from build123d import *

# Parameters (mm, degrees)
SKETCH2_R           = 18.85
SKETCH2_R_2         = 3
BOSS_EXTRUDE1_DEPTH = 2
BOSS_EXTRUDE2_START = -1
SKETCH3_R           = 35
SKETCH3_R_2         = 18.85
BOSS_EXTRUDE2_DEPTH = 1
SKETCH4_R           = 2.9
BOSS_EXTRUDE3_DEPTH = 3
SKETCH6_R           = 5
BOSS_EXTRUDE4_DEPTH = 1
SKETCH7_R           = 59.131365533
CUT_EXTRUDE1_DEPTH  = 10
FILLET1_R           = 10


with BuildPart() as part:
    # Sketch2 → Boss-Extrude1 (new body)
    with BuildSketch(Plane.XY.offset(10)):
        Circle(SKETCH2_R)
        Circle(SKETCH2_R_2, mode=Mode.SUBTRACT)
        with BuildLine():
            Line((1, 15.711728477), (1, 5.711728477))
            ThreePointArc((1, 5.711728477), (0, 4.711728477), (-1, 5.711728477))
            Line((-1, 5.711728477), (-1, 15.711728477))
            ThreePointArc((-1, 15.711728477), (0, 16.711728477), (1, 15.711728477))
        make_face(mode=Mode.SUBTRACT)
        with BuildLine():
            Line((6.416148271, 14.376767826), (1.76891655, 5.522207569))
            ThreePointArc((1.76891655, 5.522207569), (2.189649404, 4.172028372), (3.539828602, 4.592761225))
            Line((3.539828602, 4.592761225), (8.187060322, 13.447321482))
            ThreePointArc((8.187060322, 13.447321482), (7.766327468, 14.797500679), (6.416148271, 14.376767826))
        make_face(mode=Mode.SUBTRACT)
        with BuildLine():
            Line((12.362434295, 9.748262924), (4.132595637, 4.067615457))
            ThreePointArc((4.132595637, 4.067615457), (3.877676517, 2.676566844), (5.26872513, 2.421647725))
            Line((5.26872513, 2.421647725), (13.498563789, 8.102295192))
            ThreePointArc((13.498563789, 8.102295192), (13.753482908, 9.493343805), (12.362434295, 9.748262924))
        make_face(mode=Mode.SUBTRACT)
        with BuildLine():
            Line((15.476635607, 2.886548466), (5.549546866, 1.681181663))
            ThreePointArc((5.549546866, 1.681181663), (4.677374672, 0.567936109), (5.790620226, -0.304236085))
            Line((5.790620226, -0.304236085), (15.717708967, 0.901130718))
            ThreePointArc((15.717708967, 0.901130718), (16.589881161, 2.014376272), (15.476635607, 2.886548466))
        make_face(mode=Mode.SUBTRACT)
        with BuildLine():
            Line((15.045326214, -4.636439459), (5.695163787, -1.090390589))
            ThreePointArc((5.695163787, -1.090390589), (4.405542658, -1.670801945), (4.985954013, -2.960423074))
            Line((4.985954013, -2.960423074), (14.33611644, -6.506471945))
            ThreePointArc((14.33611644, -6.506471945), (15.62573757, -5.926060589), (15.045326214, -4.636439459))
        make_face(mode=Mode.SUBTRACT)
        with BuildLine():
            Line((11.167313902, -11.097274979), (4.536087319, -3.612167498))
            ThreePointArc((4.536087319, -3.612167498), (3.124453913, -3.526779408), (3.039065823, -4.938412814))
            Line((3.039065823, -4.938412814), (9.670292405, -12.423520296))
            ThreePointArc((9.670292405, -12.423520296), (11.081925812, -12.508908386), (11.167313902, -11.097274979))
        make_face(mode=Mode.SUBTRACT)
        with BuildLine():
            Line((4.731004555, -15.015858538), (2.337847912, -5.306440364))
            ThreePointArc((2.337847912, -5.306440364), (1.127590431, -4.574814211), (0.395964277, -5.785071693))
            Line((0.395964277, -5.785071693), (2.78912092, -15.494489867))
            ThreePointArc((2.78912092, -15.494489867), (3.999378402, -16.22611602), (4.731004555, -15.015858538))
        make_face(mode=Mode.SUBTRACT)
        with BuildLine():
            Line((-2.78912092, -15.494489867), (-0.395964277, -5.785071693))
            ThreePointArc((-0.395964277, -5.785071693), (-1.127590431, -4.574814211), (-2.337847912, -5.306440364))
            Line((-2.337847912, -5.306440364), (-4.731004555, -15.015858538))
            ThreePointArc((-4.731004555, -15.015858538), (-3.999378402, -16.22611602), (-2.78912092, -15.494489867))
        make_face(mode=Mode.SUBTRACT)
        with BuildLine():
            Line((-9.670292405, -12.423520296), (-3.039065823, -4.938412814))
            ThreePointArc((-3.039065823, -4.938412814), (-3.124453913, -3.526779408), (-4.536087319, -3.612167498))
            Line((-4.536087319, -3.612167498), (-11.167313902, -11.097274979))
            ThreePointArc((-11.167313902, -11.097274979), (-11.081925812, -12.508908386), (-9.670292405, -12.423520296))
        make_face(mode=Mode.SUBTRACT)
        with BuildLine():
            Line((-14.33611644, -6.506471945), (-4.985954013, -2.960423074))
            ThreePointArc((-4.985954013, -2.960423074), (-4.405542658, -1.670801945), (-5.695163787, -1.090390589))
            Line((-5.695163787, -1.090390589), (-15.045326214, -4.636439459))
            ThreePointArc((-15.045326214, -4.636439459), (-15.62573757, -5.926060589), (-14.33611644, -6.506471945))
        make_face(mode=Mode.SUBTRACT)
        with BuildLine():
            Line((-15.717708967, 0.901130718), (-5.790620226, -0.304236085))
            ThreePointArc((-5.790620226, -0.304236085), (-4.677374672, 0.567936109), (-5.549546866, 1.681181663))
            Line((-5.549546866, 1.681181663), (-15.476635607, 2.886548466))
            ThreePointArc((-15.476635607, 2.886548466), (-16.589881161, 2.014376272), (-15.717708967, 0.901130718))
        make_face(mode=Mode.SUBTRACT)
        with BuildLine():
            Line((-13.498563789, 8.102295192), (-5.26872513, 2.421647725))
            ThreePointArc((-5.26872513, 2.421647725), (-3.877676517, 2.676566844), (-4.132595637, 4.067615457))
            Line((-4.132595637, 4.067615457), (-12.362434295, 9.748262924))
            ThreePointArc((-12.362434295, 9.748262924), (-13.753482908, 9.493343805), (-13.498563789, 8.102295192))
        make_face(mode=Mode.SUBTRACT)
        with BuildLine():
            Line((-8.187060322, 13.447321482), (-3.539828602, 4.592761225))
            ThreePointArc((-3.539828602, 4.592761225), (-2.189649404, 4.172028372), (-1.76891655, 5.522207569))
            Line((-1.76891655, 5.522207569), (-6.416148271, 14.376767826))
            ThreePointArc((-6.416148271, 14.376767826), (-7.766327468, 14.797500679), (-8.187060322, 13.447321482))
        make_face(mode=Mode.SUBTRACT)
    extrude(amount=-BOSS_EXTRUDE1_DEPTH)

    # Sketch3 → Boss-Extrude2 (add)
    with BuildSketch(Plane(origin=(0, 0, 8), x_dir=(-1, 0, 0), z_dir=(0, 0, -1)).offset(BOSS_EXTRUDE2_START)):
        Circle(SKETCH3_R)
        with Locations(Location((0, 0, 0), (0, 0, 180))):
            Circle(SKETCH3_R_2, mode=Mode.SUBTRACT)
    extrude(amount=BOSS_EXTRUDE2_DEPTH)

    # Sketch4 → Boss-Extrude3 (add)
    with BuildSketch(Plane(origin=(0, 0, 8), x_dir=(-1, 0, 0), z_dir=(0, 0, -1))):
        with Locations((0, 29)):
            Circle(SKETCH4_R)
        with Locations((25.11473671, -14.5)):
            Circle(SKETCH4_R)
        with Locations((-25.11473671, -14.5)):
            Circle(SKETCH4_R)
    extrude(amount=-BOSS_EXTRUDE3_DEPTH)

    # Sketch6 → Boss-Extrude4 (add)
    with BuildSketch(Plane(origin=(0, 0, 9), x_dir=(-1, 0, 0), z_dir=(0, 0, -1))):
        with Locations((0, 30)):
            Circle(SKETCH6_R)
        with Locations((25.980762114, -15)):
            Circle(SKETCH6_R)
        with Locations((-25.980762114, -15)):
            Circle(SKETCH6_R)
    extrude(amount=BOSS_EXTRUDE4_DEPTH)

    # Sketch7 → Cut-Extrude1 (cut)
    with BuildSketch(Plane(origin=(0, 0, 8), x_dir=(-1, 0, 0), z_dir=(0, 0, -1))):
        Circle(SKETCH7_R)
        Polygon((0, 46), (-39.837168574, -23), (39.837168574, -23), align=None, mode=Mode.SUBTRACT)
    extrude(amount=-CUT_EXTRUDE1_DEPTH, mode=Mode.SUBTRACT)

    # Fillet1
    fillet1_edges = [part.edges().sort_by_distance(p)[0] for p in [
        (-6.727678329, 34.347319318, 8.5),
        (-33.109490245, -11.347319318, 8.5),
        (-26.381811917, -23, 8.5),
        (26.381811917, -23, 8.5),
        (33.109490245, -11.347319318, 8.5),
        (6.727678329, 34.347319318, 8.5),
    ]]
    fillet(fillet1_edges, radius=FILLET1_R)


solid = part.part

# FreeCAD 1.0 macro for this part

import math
import FreeCAD as App
import Part
import Sketcher
Q = App.Units.Quantity


def edges_at(feature, points):
    """Names of the edges that pass closest to the given points."""
    edges = feature.Shape.Edges
    near = lambda p: min(range(len(edges)), key=lambda i: edges[i].distToShape(Part.Vertex(*p))[0])
    return sorted({f"Edge{near(p) + 1}" for p in points})


def add_polygon(sketch, points):
    """Adds a closed chain of lines whose ends are joined by coincident constraints."""
    first, n = sketch.GeometryCount, len(points)
    for a, b in zip(points, points[1:] + points[:1]):
        sketch.addGeometry(Part.LineSegment(App.Vector(*a, 0), App.Vector(*b, 0)), False)
    for i in range(n):
        sketch.addConstraint(Sketcher.Constraint("Coincident", first + i, 2, first + (i + 1) % n, 1))

doc = App.newDocument("Part")
body = doc.addObject("PartDesign::Body", "Body")

sketch1 = body.newObject("Sketcher::SketchObject", "Sketch")
sketch1.AttachmentSupport = (doc.getObject("XY_Plane"), [""])
sketch1.MapMode = "FlatFace"
sketch1.AttachmentOffset = App.Placement(App.Vector(0, 0, 10), App.Rotation())
sketch1.addGeometry(Part.Circle(App.Vector(0, 0, 0), App.Vector(0, 0, 1), 18.9), False)
sketch1.addGeometry(Part.LineSegment(App.Vector(-3, -4.9, 0), App.Vector(-9.7, -12.4, 0)), False)
sketch1.addGeometry(Part.ArcOfCircle(Part.Circle(App.Vector(-10.4, -11.8, 0), App.Vector(0, 0, 1), 1), math.radians(138), math.radians(318)), False)
sketch1.addGeometry(Part.LineSegment(App.Vector(-11.2, -11.1, 0), App.Vector(-4.5, -3.6, 0)), False)
sketch1.addGeometry(Part.ArcOfCircle(Part.Circle(App.Vector(-3.8, -4.3, 0), App.Vector(0, 0, 1), 1), math.radians(-42), math.radians(138)), False)
sketch1.addGeometry(Part.LineSegment(App.Vector(-0.4, -5.8, 0), App.Vector(-2.8, -15.5, 0)), False)
sketch1.addGeometry(Part.ArcOfCircle(Part.Circle(App.Vector(-3.8, -15.3, 0), App.Vector(0, 0, 1), 1), math.radians(166), math.radians(346)), False)
sketch1.addGeometry(Part.LineSegment(App.Vector(-4.7, -15, 0), App.Vector(-2.3, -5.3, 0)), False)
sketch1.addGeometry(Part.ArcOfCircle(Part.Circle(App.Vector(-1.4, -5.5, 0), App.Vector(0, 0, 1), 1), math.radians(-14), math.radians(166)), False)
sketch1.addGeometry(Part.LineSegment(App.Vector(-5, -3, 0), App.Vector(-14.3, -6.5, 0)), False)
sketch1.addGeometry(Part.ArcOfCircle(Part.Circle(App.Vector(-14.7, -5.6, 0), App.Vector(0, 0, 1), 1), math.radians(111), math.radians(291)), False)
sketch1.addGeometry(Part.LineSegment(App.Vector(-15, -4.6, 0), App.Vector(-5.7, -1.1, 0)), False)
sketch1.addGeometry(Part.ArcOfCircle(Part.Circle(App.Vector(-5.3, -2, 0), App.Vector(0, 0, 1), 1), math.radians(-69), math.radians(111)), False)
sketch1.addGeometry(Part.Circle(App.Vector(0, 0, 0), App.Vector(0, 0, 1), 3), False)
sketch1.addGeometry(Part.LineSegment(App.Vector(2.3, -5.3, 0), App.Vector(4.7, -15, 0)), False)
sketch1.addGeometry(Part.ArcOfCircle(Part.Circle(App.Vector(3.8, -15.3, 0), App.Vector(0, 0, 1), 1), math.radians(-166), math.radians(14)), False)
sketch1.addGeometry(Part.LineSegment(App.Vector(2.8, -15.5, 0), App.Vector(0.4, -5.8, 0)), False)
sketch1.addGeometry(Part.ArcOfCircle(Part.Circle(App.Vector(1.4, -5.5, 0), App.Vector(0, 0, 1), 1), math.radians(14), math.radians(194)), False)
sketch1.addGeometry(Part.LineSegment(App.Vector(4.5, -3.6, 0), App.Vector(11.2, -11.1, 0)), False)
sketch1.addGeometry(Part.ArcOfCircle(Part.Circle(App.Vector(10.4, -11.8, 0), App.Vector(0, 0, 1), 1), math.radians(-138), math.radians(42)), False)
sketch1.addGeometry(Part.LineSegment(App.Vector(9.7, -12.4, 0), App.Vector(3, -4.9, 0)), False)
sketch1.addGeometry(Part.ArcOfCircle(Part.Circle(App.Vector(3.8, -4.3, 0), App.Vector(0, 0, 1), 1), math.radians(42), math.radians(222)), False)
sketch1.addGeometry(Part.LineSegment(App.Vector(5.7, -1.1, 0), App.Vector(15, -4.6, 0)), False)
sketch1.addGeometry(Part.ArcOfCircle(Part.Circle(App.Vector(14.7, -5.6, 0), App.Vector(0, 0, 1), 1), math.radians(-111), math.radians(69)), False)
sketch1.addGeometry(Part.LineSegment(App.Vector(14.3, -6.5, 0), App.Vector(5, -3, 0)), False)
sketch1.addGeometry(Part.ArcOfCircle(Part.Circle(App.Vector(5.3, -2, 0), App.Vector(0, 0, 1), 1), math.radians(69), math.radians(249)), False)
sketch1.addGeometry(Part.LineSegment(App.Vector(-5.8, -0.3, 0), App.Vector(-15.7, 0.9, 0)), False)
sketch1.addGeometry(Part.ArcOfCircle(Part.Circle(App.Vector(-15.6, 1.9, 0), App.Vector(0, 0, 1), 1), math.radians(83), math.radians(263)), False)
sketch1.addGeometry(Part.LineSegment(App.Vector(-15.5, 2.9, 0), App.Vector(-5.5, 1.7, 0)), False)
sketch1.addGeometry(Part.ArcOfCircle(Part.Circle(App.Vector(-5.7, 0.7, 0), App.Vector(0, 0, 1), 1), math.radians(-97), math.radians(83)), False)
sketch1.addGeometry(Part.LineSegment(App.Vector(-5.3, 2.4, 0), App.Vector(-13.5, 8.1, 0)), False)
sketch1.addGeometry(Part.ArcOfCircle(Part.Circle(App.Vector(-12.9, 8.9, 0), App.Vector(0, 0, 1), 1), math.radians(55), math.radians(235)), False)
sketch1.addGeometry(Part.LineSegment(App.Vector(-12.4, 9.7, 0), App.Vector(-4.1, 4.1, 0)), False)
sketch1.addGeometry(Part.ArcOfCircle(Part.Circle(App.Vector(-4.7, 3.2, 0), App.Vector(0, 0, 1), 1), math.radians(-125), math.radians(55)), False)
sketch1.addGeometry(Part.LineSegment(App.Vector(-3.5, 4.6, 0), App.Vector(-8.2, 13.4, 0)), False)
sketch1.addGeometry(Part.ArcOfCircle(Part.Circle(App.Vector(-7.3, 13.9, 0), App.Vector(0, 0, 1), 1), math.radians(28), math.radians(208)), False)
sketch1.addGeometry(Part.LineSegment(App.Vector(-6.4, 14.4, 0), App.Vector(-1.8, 5.5, 0)), False)
sketch1.addGeometry(Part.ArcOfCircle(Part.Circle(App.Vector(-2.7, 5.1, 0), App.Vector(0, 0, 1), 1), math.radians(-152), math.radians(28)), False)
sketch1.addGeometry(Part.ArcOfCircle(Part.Circle(App.Vector(0, 15.7, 0), App.Vector(0, 0, 1), 1), math.radians(0), math.radians(180)), False)
sketch1.addGeometry(Part.LineSegment(App.Vector(1, 15.7, 0), App.Vector(1, 5.7, 0)), False)
sketch1.addGeometry(Part.ArcOfCircle(Part.Circle(App.Vector(0, 5.7, 0), App.Vector(0, 0, 1), 1), math.radians(180), math.radians(360)), False)
sketch1.addGeometry(Part.LineSegment(App.Vector(-1, 5.7, 0), App.Vector(-1, 15.7, 0)), False)
sketch1.addGeometry(Part.LineSegment(App.Vector(5.5, 1.7, 0), App.Vector(15.5, 2.9, 0)), False)
sketch1.addGeometry(Part.ArcOfCircle(Part.Circle(App.Vector(15.6, 1.9, 0), App.Vector(0, 0, 1), 1), math.radians(-83), math.radians(97)), False)
sketch1.addGeometry(Part.LineSegment(App.Vector(15.7, 0.9, 0), App.Vector(5.8, -0.3, 0)), False)
sketch1.addGeometry(Part.ArcOfCircle(Part.Circle(App.Vector(5.7, 0.7, 0), App.Vector(0, 0, 1), 1), math.radians(97), math.radians(277)), False)
sketch1.addGeometry(Part.LineSegment(App.Vector(4.1, 4.1, 0), App.Vector(12.4, 9.7, 0)), False)
sketch1.addGeometry(Part.ArcOfCircle(Part.Circle(App.Vector(12.9, 8.9, 0), App.Vector(0, 0, 1), 1), math.radians(-55), math.radians(125)), False)
sketch1.addGeometry(Part.LineSegment(App.Vector(13.5, 8.1, 0), App.Vector(5.3, 2.4, 0)), False)
sketch1.addGeometry(Part.ArcOfCircle(Part.Circle(App.Vector(4.7, 3.2, 0), App.Vector(0, 0, 1), 1), math.radians(125), math.radians(305)), False)
sketch1.addGeometry(Part.LineSegment(App.Vector(1.8, 5.5, 0), App.Vector(6.4, 14.4, 0)), False)
sketch1.addGeometry(Part.ArcOfCircle(Part.Circle(App.Vector(7.3, 13.9, 0), App.Vector(0, 0, 1), 1), math.radians(-28), math.radians(152)), False)
sketch1.addGeometry(Part.LineSegment(App.Vector(8.2, 13.4, 0), App.Vector(3.5, 4.6, 0)), False)
sketch1.addGeometry(Part.ArcOfCircle(Part.Circle(App.Vector(2.7, 5.1, 0), App.Vector(0, 0, 1), 1), math.radians(152), math.radians(332)), False)
sketch1.addConstraint(Sketcher.Constraint("Tangent", 1, 2, 2, 2))
sketch1.addConstraint(Sketcher.Constraint("Tangent", 2, 1, 3, 1))
sketch1.addConstraint(Sketcher.Constraint("Tangent", 3, 2, 4, 2))
sketch1.addConstraint(Sketcher.Constraint("Tangent", 4, 1, 1, 1))
sketch1.addConstraint(Sketcher.Constraint("Tangent", 5, 2, 6, 2))
sketch1.addConstraint(Sketcher.Constraint("Tangent", 6, 1, 7, 1))
sketch1.addConstraint(Sketcher.Constraint("Tangent", 7, 2, 8, 2))
sketch1.addConstraint(Sketcher.Constraint("Tangent", 8, 1, 5, 1))
sketch1.addConstraint(Sketcher.Constraint("Tangent", 9, 2, 10, 2))
sketch1.addConstraint(Sketcher.Constraint("Tangent", 10, 1, 11, 1))
sketch1.addConstraint(Sketcher.Constraint("Tangent", 11, 2, 12, 2))
sketch1.addConstraint(Sketcher.Constraint("Tangent", 12, 1, 9, 1))
sketch1.addConstraint(Sketcher.Constraint("Tangent", 14, 2, 15, 2))
sketch1.addConstraint(Sketcher.Constraint("Tangent", 15, 1, 16, 1))
sketch1.addConstraint(Sketcher.Constraint("Tangent", 16, 2, 17, 2))
sketch1.addConstraint(Sketcher.Constraint("Tangent", 17, 1, 14, 1))
sketch1.addConstraint(Sketcher.Constraint("Tangent", 18, 2, 19, 2))
sketch1.addConstraint(Sketcher.Constraint("Tangent", 19, 1, 20, 1))
sketch1.addConstraint(Sketcher.Constraint("Tangent", 20, 2, 21, 2))
sketch1.addConstraint(Sketcher.Constraint("Tangent", 21, 1, 18, 1))
sketch1.addConstraint(Sketcher.Constraint("Tangent", 22, 2, 23, 2))
sketch1.addConstraint(Sketcher.Constraint("Tangent", 23, 1, 24, 1))
sketch1.addConstraint(Sketcher.Constraint("Tangent", 24, 2, 25, 2))
sketch1.addConstraint(Sketcher.Constraint("Tangent", 25, 1, 22, 1))
sketch1.addConstraint(Sketcher.Constraint("Tangent", 26, 2, 27, 2))
sketch1.addConstraint(Sketcher.Constraint("Tangent", 27, 1, 28, 1))
sketch1.addConstraint(Sketcher.Constraint("Tangent", 28, 2, 29, 2))
sketch1.addConstraint(Sketcher.Constraint("Tangent", 29, 1, 26, 1))
sketch1.addConstraint(Sketcher.Constraint("Tangent", 30, 2, 31, 2))
sketch1.addConstraint(Sketcher.Constraint("Tangent", 31, 1, 32, 1))
sketch1.addConstraint(Sketcher.Constraint("Tangent", 32, 2, 33, 2))
sketch1.addConstraint(Sketcher.Constraint("Tangent", 33, 1, 30, 1))
sketch1.addConstraint(Sketcher.Constraint("Tangent", 34, 2, 35, 2))
sketch1.addConstraint(Sketcher.Constraint("Tangent", 35, 1, 36, 1))
sketch1.addConstraint(Sketcher.Constraint("Tangent", 36, 2, 37, 2))
sketch1.addConstraint(Sketcher.Constraint("Tangent", 37, 1, 34, 1))
sketch1.addConstraint(Sketcher.Constraint("Tangent", 38, 1, 39, 1))
sketch1.addConstraint(Sketcher.Constraint("Tangent", 39, 2, 40, 2))
sketch1.addConstraint(Sketcher.Constraint("Tangent", 40, 1, 41, 1))
sketch1.addConstraint(Sketcher.Constraint("Tangent", 41, 2, 38, 2))
sketch1.addConstraint(Sketcher.Constraint("Tangent", 42, 2, 43, 2))
sketch1.addConstraint(Sketcher.Constraint("Tangent", 43, 1, 44, 1))
sketch1.addConstraint(Sketcher.Constraint("Tangent", 44, 2, 45, 2))
sketch1.addConstraint(Sketcher.Constraint("Tangent", 45, 1, 42, 1))
sketch1.addConstraint(Sketcher.Constraint("Tangent", 46, 2, 47, 2))
sketch1.addConstraint(Sketcher.Constraint("Tangent", 47, 1, 48, 1))
sketch1.addConstraint(Sketcher.Constraint("Tangent", 48, 2, 49, 2))
sketch1.addConstraint(Sketcher.Constraint("Tangent", 49, 1, 46, 1))
sketch1.addConstraint(Sketcher.Constraint("Tangent", 50, 2, 51, 2))
sketch1.addConstraint(Sketcher.Constraint("Tangent", 51, 1, 52, 1))
sketch1.addConstraint(Sketcher.Constraint("Tangent", 52, 2, 53, 2))
sketch1.addConstraint(Sketcher.Constraint("Tangent", 53, 1, 50, 1))
sketch1.addConstraint(Sketcher.Constraint("Vertical", 39))
sketch1.addConstraint(Sketcher.Constraint("Vertical", 41))
sketch1.addConstraint(Sketcher.Constraint("Coincident", 0, 3, -1, 1))
sketch1.addConstraint(Sketcher.Constraint("Coincident", 13, 3, -1, 1))
sketch1.addConstraint(Sketcher.Constraint("Equal", 2, 4))
sketch1.addConstraint(Sketcher.Constraint("Equal", 4, 6))
sketch1.addConstraint(Sketcher.Constraint("Equal", 6, 8))
sketch1.addConstraint(Sketcher.Constraint("Equal", 8, 10))
sketch1.addConstraint(Sketcher.Constraint("Equal", 10, 12))
sketch1.addConstraint(Sketcher.Constraint("Equal", 12, 15))
sketch1.addConstraint(Sketcher.Constraint("Equal", 15, 17))
sketch1.addConstraint(Sketcher.Constraint("Equal", 17, 19))
sketch1.addConstraint(Sketcher.Constraint("Equal", 19, 21))
sketch1.addConstraint(Sketcher.Constraint("Equal", 21, 23))
sketch1.addConstraint(Sketcher.Constraint("Equal", 23, 25))
sketch1.addConstraint(Sketcher.Constraint("Equal", 25, 27))
sketch1.addConstraint(Sketcher.Constraint("Equal", 27, 29))
sketch1.addConstraint(Sketcher.Constraint("Equal", 29, 31))
sketch1.addConstraint(Sketcher.Constraint("Equal", 31, 33))
sketch1.addConstraint(Sketcher.Constraint("Equal", 33, 35))
sketch1.addConstraint(Sketcher.Constraint("Equal", 35, 37))
sketch1.addConstraint(Sketcher.Constraint("Equal", 37, 38))
sketch1.addConstraint(Sketcher.Constraint("Equal", 40, 43))
sketch1.addConstraint(Sketcher.Constraint("Equal", 43, 45))
sketch1.addConstraint(Sketcher.Constraint("Equal", 45, 47))
sketch1.addConstraint(Sketcher.Constraint("Equal", 47, 49))
sketch1.addConstraint(Sketcher.Constraint("Equal", 49, 51))
sketch1.addConstraint(Sketcher.Constraint("Equal", 51, 53))
sketch1.addConstraint(Sketcher.Constraint("Symmetric", 6, 3, 15, 3, -2))
sketch1.addConstraint(Sketcher.Constraint("Symmetric", 8, 3, 17, 3, -2))
sketch1.addConstraint(Sketcher.Constraint("Symmetric", 2, 3, 19, 3, -2))
sketch1.addConstraint(Sketcher.Constraint("Symmetric", 4, 3, 21, 3, -2))
sketch1.addConstraint(Sketcher.Constraint("Symmetric", 10, 3, 23, 3, -2))
sketch1.addConstraint(Sketcher.Constraint("Symmetric", 12, 3, 25, 3, -2))
sketch1.addConstraint(Sketcher.Constraint("Symmetric", 27, 3, 43, 3, -2))
sketch1.addConstraint(Sketcher.Constraint("Symmetric", 29, 3, 45, 3, -2))
sketch1.addConstraint(Sketcher.Constraint("Symmetric", 31, 3, 47, 3, -2))
sketch1.addConstraint(Sketcher.Constraint("Symmetric", 33, 3, 49, 3, -2))
sketch1.addConstraint(Sketcher.Constraint("Symmetric", 35, 3, 51, 3, -2))
sketch1.addConstraint(Sketcher.Constraint("Symmetric", 37, 3, 53, 3, -2))
sketch1.addConstraint(Sketcher.Constraint("PointOnObject", 38, 3, -2))
sketch1.addConstraint(Sketcher.Constraint("Equal", 3, 5))
sketch1.addConstraint(Sketcher.Constraint("Equal", 7, 9))
sketch1.addConstraint(Sketcher.Constraint("Equal", 24, 26))
sketch1.addConstraint(Sketcher.Constraint("Equal", 28, 30))
sketch1.addConstraint(Sketcher.Constraint("Equal", 32, 34))
sketch1.addConstraint(Sketcher.Constraint("Diameter", 13, 6.0))
sketch1.addConstraint(Sketcher.Constraint("Radius", 2, 1.0))
sketch1.addConstraint(Sketcher.Constraint("Diameter", 0, 37.7))
sketch1.addConstraint(Sketcher.Constraint("DistanceY", 39, 2, 39, 1, 10.0))
sketch1.addConstraint(Sketcher.Constraint("Distance", 1, 10.0))
sketch1.addConstraint(Sketcher.Constraint("DistanceX", 31, 3, -1, 1, 12.930499))
sketch1.addConstraint(Sketcher.Constraint("DistanceY", 4, 3, -1, 1, 4.27529))
sketch1.addConstraint(Sketcher.Constraint("DistanceX", 10, 3, -1, 1, 14.690721))
sketch1.addConstraint(Sketcher.Constraint("DistanceX", 12, 3, -1, 1, 5.340559))
sketch1.addConstraint(Sketcher.Constraint("DistanceY", -1, 1, 27, 3, 1.89384))
sketch1.addConstraint(Sketcher.Constraint("DistanceY", -1, 1, 31, 3, 8.925279))
sketch1.addConstraint(Sketcher.Constraint("DistanceX", 33, 3, -1, 1, 4.70066))
sketch1.addConstraint(Sketcher.Constraint("DistanceY", -1, 1, 38, 3, 15.711728))
sketch1.addConstraint(Sketcher.Constraint("DistanceY", 1, 2, -1, 1, 12.42352))
sketch1.addConstraint(Sketcher.Constraint("DistanceX", 5, 2, -1, 1, 2.789121))
sketch1.addConstraint(Sketcher.Constraint("DistanceY", 5, 2, -1, 1, 15.49449))
sketch1.addConstraint(Sketcher.Constraint("DistanceY", 6, 1, -1, 1, 15.015859))
sketch1.addConstraint(Sketcher.Constraint("DistanceY", 9, 2, -1, 1, 6.506472))
sketch1.addConstraint(Sketcher.Constraint("DistanceX", 26, 2, -1, 1, 15.717709))
sketch1.addConstraint(Sketcher.Constraint("DistanceY", -1, 1, 26, 2, 0.901131))
sketch1.addConstraint(Sketcher.Constraint("DistanceX", 34, 2, -1, 1, 8.18706))
sketch1.addConstraint(Sketcher.Constraint("DistanceY", -1, 1, 34, 2, 13.447321))
sketch1.addConstraint(Sketcher.Constraint("DistanceX", 35, 1, -1, 1, 6.416148))
sketch1.addConstraint(Sketcher.Constraint("DistanceX", 2, 3, -1, 1, 10.418803))
pad1 = body.newObject("PartDesign::Pad", "Pad")
pad1.Profile = sketch1
pad1.Length = 2
pad1.Reversed = True

sketch2 = body.newObject("Sketcher::SketchObject", "Sketch001")
sketch2.AttachmentSupport = (doc.getObject("XY_Plane"), [""])
sketch2.MapMode = "FlatFace"
sketch2.AttachmentOffset = App.Placement(App.Vector(0, 0, 9), App.Rotation())
sketch2.addGeometry(Part.Circle(App.Vector(0, 0, 0), App.Vector(0, 0, 1), 35), False)
sketch2.addGeometry(Part.Circle(App.Vector(0, 0, 0), App.Vector(0, 0, 1), 19), False)
sketch2.addConstraint(Sketcher.Constraint("Coincident", 0, 3, -1, 1))
sketch2.addConstraint(Sketcher.Constraint("Coincident", 1, 3, -1, 1))
sketch2.addConstraint(Sketcher.Constraint("Diameter", 0, 70.0))
sketch2.addConstraint(Sketcher.Constraint("Diameter", 1, 37.7))
pad2 = body.newObject("PartDesign::Pad", "Pad001")
pad2.Profile = sketch2
pad2.Length = 1
pad2.Reversed = True

sketch3 = body.newObject("Sketcher::SketchObject", "Sketch002")
sketch3.AttachmentSupport = (doc.getObject("XY_Plane"), [""])
sketch3.MapMode = "FlatFace"
sketch3.AttachmentOffset = App.Placement(App.Vector(0, 0, 8), App.Rotation())
sketch3.addGeometry(Part.Circle(App.Vector(0, 29, 0), App.Vector(0, 0, 1), 2.9), False)
sketch3.addGeometry(Part.Circle(App.Vector(-25.1, -14.5, 0), App.Vector(0, 0, 1), 2.9), False)
sketch3.addGeometry(Part.Circle(App.Vector(25.1, -14.5, 0), App.Vector(0, 0, 1), 2.9), False)
sketch3.addConstraint(Sketcher.Constraint("Equal", 0, 1))
sketch3.addConstraint(Sketcher.Constraint("Equal", 1, 2))
sketch3.addConstraint(Sketcher.Constraint("Symmetric", 1, 3, 2, 3, -2))
sketch3.addConstraint(Sketcher.Constraint("PointOnObject", 0, 3, -2))
sketch3.addConstraint(Sketcher.Constraint("Diameter", 0, 5.8))
sketch3.addConstraint(Sketcher.Constraint("DistanceY", -1, 1, 0, 3, 29.0))
sketch3.addConstraint(Sketcher.Constraint("DistanceY", 1, 3, -1, 1, 14.5))
sketch3.addConstraint(Sketcher.Constraint("DistanceX", 1, 3, -1, 1, 25.114737))
pad3 = body.newObject("PartDesign::Pad", "Pad002")
pad3.Profile = sketch3
pad3.Length = 3

sketch4 = body.newObject("Sketcher::SketchObject", "Sketch003")
sketch4.AttachmentSupport = (doc.getObject("XY_Plane"), [""])
sketch4.MapMode = "FlatFace"
sketch4.AttachmentOffset = App.Placement(App.Vector(0, 0, 9), App.Rotation())
sketch4.addGeometry(Part.Circle(App.Vector(0, 30, 0), App.Vector(0, 0, 1), 5), False)
sketch4.addGeometry(Part.Circle(App.Vector(-26, -15, 0), App.Vector(0, 0, 1), 5), False)
sketch4.addGeometry(Part.Circle(App.Vector(26, -15, 0), App.Vector(0, 0, 1), 5), False)
sketch4.addConstraint(Sketcher.Constraint("Equal", 0, 1))
sketch4.addConstraint(Sketcher.Constraint("Equal", 1, 2))
sketch4.addConstraint(Sketcher.Constraint("Symmetric", 1, 3, 2, 3, -2))
sketch4.addConstraint(Sketcher.Constraint("PointOnObject", 0, 3, -2))
sketch4.addConstraint(Sketcher.Constraint("Diameter", 0, 10.0))
sketch4.addConstraint(Sketcher.Constraint("DistanceY", -1, 1, 0, 3, 30.0))
sketch4.addConstraint(Sketcher.Constraint("DistanceY", 1, 3, -1, 1, 15.0))
sketch4.addConstraint(Sketcher.Constraint("DistanceX", 1, 3, -1, 1, 25.980762))
pad4 = body.newObject("PartDesign::Pad", "Pad003")
pad4.Profile = sketch4
pad4.Length = 1
pad4.Reversed = True

sketch5 = body.newObject("Sketcher::SketchObject", "Sketch004")
sketch5.AttachmentSupport = (doc.getObject("XY_Plane"), [""])
sketch5.MapMode = "FlatFace"
sketch5.AttachmentOffset = App.Placement(App.Vector(0, 0, 8), App.Rotation())
sketch5.addGeometry(Part.Circle(App.Vector(0, 0, 0), App.Vector(0, 0, 1), 59), False)
add_polygon(sketch5, [(40, -23), (0, 46), (-40, -23)])
sketch5.addConstraint(Sketcher.Constraint("Horizontal", 3))
sketch5.addConstraint(Sketcher.Constraint("Coincident", 0, 3, -1, 1))
sketch5.addConstraint(Sketcher.Constraint("PointOnObject", 1, 2, -2))
sketch5.addConstraint(Sketcher.Constraint("Equal", 1, 2))
sketch5.addConstraint(Sketcher.Constraint("Angle", 1, Q("120 deg")))
sketch5.addConstraint(Sketcher.Constraint("DistanceY", -1, 1, 1, 2, 46.0))
sketch5.addConstraint(Sketcher.Constraint("DistanceY", 2, 2, -1, 1, 23.0))
sketch5.addConstraint(Sketcher.Constraint("Diameter", 0, 118.262731))
pocket1 = body.newObject("PartDesign::Pocket", "Pocket")
pocket1.Profile = sketch5
pocket1.Length = 10
pocket1.Reversed = True
doc.recompute()

fillet = body.newObject("PartDesign::Fillet", "Fillet")
fillet.Base = (pocket1, edges_at(pocket1, [
    (-6.728, 34.347, 8.5),
    (-33.109, -11.347, 8.5),
    (-26.382, -23, 8.5),
    (26.382, -23, 8.5),
    (33.109, -11.347, 8.5),
    (6.728, 34.347, 8.5),
]))
fillet.Radius = 10

doc.recompute()
